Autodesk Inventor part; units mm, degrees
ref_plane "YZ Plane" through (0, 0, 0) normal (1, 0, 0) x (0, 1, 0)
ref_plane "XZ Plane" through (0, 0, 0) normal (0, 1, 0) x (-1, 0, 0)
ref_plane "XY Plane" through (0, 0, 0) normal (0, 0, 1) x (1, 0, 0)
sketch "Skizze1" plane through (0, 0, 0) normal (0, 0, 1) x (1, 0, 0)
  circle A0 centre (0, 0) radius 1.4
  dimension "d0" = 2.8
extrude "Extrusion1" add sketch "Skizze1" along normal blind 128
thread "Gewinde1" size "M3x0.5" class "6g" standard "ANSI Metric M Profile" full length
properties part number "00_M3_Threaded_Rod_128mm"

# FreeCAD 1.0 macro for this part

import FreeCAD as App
import Part
import Sketcher

doc = App.newDocument("Part")
body = doc.addObject("PartDesign::Body", "Body")

# Sketch on XY plane
sketch1 = body.newObject("Sketcher::SketchObject", "Sketch")
sketch1.AttachmentSupport = (doc.getObject("XY_Plane"), [""])
sketch1.MapMode = "FlatFace"
sketch1.addGeometry(Part.Circle(App.Vector(0, 0, 0), App.Vector(0, 0, 1), 1.4), False)
sketch1.addConstraint([
    Sketcher.Constraint("Coincident", 0, 3, -1, 1),
    Sketcher.Constraint("Diameter", 0, 2.8),
])
pad1 = body.newObject("PartDesign::Pad", "Pad")
pad1.Profile = sketch1
pad1.Length = 128

doc.recompute()
